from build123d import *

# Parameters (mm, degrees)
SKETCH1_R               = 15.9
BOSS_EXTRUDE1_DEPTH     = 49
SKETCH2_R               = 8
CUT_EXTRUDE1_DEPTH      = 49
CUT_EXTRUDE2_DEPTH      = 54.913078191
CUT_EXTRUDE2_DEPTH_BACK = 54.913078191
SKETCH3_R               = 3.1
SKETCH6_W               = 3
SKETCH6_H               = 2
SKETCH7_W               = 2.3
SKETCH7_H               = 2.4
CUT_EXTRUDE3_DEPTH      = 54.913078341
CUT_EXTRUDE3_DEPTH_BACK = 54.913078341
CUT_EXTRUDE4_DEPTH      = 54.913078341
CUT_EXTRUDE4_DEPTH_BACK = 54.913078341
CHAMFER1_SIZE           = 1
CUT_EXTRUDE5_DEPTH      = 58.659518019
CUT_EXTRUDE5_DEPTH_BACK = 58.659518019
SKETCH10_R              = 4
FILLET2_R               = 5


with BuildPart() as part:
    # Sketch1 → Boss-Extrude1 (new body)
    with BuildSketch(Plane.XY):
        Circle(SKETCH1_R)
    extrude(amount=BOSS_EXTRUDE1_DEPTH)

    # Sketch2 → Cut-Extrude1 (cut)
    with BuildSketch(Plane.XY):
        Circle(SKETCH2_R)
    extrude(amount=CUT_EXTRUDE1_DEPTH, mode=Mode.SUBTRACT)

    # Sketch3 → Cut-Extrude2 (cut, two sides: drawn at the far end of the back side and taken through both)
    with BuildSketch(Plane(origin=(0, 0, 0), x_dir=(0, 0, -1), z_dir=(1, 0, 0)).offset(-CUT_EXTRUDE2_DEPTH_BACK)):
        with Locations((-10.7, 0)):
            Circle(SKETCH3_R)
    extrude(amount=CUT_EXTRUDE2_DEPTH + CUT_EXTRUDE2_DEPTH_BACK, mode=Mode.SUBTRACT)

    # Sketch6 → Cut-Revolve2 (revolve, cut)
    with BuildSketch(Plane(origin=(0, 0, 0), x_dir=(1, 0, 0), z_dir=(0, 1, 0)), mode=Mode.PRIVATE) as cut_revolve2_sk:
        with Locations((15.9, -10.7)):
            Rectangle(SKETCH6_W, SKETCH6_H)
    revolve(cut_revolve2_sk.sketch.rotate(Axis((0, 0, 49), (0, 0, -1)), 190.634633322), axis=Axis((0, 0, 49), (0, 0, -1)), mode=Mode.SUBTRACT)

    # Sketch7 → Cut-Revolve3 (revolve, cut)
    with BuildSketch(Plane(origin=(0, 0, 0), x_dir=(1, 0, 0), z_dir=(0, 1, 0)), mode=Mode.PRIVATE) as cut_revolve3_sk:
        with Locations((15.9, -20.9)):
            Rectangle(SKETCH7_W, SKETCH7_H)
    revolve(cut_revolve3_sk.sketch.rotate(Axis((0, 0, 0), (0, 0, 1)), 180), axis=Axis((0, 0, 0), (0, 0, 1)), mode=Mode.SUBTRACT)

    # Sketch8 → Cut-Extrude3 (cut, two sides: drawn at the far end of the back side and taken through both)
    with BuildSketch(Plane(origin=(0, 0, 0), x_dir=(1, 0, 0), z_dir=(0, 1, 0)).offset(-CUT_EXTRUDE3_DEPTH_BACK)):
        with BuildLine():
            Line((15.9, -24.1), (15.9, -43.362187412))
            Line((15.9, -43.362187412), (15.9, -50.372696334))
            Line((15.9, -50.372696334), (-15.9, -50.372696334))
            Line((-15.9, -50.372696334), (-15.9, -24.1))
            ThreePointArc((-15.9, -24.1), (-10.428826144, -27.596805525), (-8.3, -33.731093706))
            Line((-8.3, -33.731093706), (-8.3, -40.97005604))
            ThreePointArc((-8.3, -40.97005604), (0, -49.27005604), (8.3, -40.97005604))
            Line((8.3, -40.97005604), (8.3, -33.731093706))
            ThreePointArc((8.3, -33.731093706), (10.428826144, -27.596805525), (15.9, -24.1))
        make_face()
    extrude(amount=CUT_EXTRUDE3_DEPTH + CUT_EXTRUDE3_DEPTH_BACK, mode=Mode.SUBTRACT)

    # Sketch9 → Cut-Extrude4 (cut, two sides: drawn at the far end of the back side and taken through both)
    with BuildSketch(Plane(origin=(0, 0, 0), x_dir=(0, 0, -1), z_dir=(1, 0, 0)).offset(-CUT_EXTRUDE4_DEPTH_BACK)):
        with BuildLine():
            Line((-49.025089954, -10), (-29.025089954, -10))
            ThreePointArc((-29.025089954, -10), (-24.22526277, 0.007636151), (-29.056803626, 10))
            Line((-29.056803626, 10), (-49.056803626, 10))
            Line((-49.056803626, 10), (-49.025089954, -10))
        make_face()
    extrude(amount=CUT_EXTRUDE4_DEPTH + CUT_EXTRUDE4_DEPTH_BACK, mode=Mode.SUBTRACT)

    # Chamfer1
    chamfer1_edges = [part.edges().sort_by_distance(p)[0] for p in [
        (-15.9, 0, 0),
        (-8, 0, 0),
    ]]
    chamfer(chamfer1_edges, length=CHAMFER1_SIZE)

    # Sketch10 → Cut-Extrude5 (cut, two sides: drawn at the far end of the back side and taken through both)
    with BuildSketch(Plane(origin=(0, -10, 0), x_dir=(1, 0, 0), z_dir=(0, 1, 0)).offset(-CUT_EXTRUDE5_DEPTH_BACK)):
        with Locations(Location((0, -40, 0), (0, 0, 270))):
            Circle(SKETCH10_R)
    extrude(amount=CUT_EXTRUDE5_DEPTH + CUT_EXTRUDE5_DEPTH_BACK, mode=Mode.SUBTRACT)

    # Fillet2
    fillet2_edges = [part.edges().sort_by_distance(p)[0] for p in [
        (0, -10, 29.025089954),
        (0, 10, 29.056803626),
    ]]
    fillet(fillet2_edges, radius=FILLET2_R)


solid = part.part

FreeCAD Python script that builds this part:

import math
import FreeCAD as App
import Part
import Sketcher
from FreeCAD import Vector
Q = App.Units.Quantity


def edges_at(feature, points):
    """Names of the edges that pass closest to the given points."""
    edges = feature.Shape.Edges
    near = lambda p: min(range(len(edges)), key=lambda i: edges[i].distToShape(Part.Vertex(*p))[0])
    return sorted({f"Edge{near(p) + 1}" for p in points})


def add_polygon(sketch, points):
    """Adds a closed chain of lines whose ends are joined by coincident constraints."""
    first, n = sketch.GeometryCount, len(points)
    for a, b in zip(points, points[1:] + points[:1]):
        sketch.addGeometry(Part.LineSegment(App.Vector(*a, 0), App.Vector(*b, 0)), False)
    for i in range(n):
        sketch.addConstraint(Sketcher.Constraint("Coincident", first + i, 2, first + (i + 1) % n, 1))

doc = App.newDocument("Part")
body = doc.addObject("PartDesign::Body", "Body")

# Sketch on XY plane
sketch1 = body.newObject("Sketcher::SketchObject", "Sketch")
sketch1.AttachmentSupport = (doc.getObject("XY_Plane"), [""])
sketch1.MapMode = "FlatFace"
sketch1.addGeometry(Part.Circle(Vector(0, 0, 0), Vector(0, 0, 1), 15.9), False)
sketch1.addConstraint(Sketcher.Constraint("Coincident", 0, 3, -1, 1))
sketch1.addConstraint(Sketcher.Constraint("Diameter", 0, Q("31.8 mm")))
pad1 = body.newObject("PartDesign::Pad", "Pad")
pad1.Profile = sketch1
pad1.Length = 49

# Sketch on XY plane
sketch2 = body.newObject("Sketcher::SketchObject", "Sketch001")
sketch2.AttachmentSupport = (doc.getObject("XY_Plane"), [""])
sketch2.MapMode = "FlatFace"
sketch2.addGeometry(Part.Circle(Vector(0, 0, 0), Vector(0, 0, 1), 8), False)
sketch2.addConstraint(Sketcher.Constraint("Coincident", 0, 3, -1, 1))
sketch2.addConstraint(Sketcher.Constraint("Diameter", 0, Q("16 mm")))
pocket1 = body.newObject("PartDesign::Pocket", "Pocket")
pocket1.Profile = sketch2
pocket1.Length = 49
pocket1.Reversed = True

# Sketch on YZ plane
sketch3 = body.newObject("Sketcher::SketchObject", "Sketch002")
sketch3.AttachmentSupport = (doc.getObject("YZ_Plane"), [""])
sketch3.MapMode = "FlatFace"
sketch3.addGeometry(Part.Circle(Vector(0, 10.7, 0), Vector(0, 0, 1), 3.1), False)
sketch3.addConstraint(Sketcher.Constraint("PointOnObject", 0, 3, -2))
sketch3.addConstraint(Sketcher.Constraint("Diameter", 0, Q("6.2 mm")))
sketch3.addConstraint(Sketcher.Constraint("DistanceY", -1, 1, 0, 3, Q("10.7 mm")))
pocket2 = body.newObject("PartDesign::Pocket", "Pocket001")
pocket2.Profile = sketch3
pocket2.Type = "ThroughAll"
pocket2.Midplane = True

# Sketch on XZ plane
sketch4 = body.newObject("Sketcher::SketchObject", "Sketch003")
sketch4.AttachmentSupport = (doc.getObject("XZ_Plane"), [""])
sketch4.MapMode = "FlatFace"
add_polygon(sketch4, [(14.4, 9.7), (14.4, 11.7), (17.4, 11.7), (17.4, 9.7)])  # lines 0-3
sketch4.addConstraint(Sketcher.Constraint("Vertical", 0))
sketch4.addConstraint(Sketcher.Constraint("Horizontal", 1))
sketch4.addConstraint(Sketcher.Constraint("Vertical", 2))
sketch4.addConstraint(Sketcher.Constraint("Horizontal", 3))
sketch4.addConstraint(Sketcher.Constraint("DistanceX", 1, 1, 1, 2, Q("3 mm")))
sketch4.addConstraint(Sketcher.Constraint("DistanceY", 0, 1, 0, 2, Q("2 mm")))
sketch4.addConstraint(Sketcher.Constraint("DistanceX", -1, 1, 0, 2, Q("14.4 mm")))
sketch4.addConstraint(Sketcher.Constraint("DistanceY", -1, 1, 0, 2, Q("11.7 mm")))
groove = body.newObject("PartDesign::Groove", "Groove")
groove.Profile = sketch4
groove.ReferenceAxis = (sketch4, ["V_Axis"])
groove.Angle = 360

# Sketch on XZ plane
sketch5 = body.newObject("Sketcher::SketchObject", "Sketch004")
sketch5.AttachmentSupport = (doc.getObject("XZ_Plane"), [""])
sketch5.MapMode = "FlatFace"
add_polygon(sketch5, [(14.75, 19.7), (14.75, 22.1), (17.05, 22.1), (17.05, 19.7)])  # lines 0-3
sketch5.addConstraint(Sketcher.Constraint("Vertical", 0))
sketch5.addConstraint(Sketcher.Constraint("Horizontal", 1))
sketch5.addConstraint(Sketcher.Constraint("Vertical", 2))
sketch5.addConstraint(Sketcher.Constraint("Horizontal", 3))
sketch5.addConstraint(Sketcher.Constraint("DistanceX", 1, 1, 1, 2, Q("2.3 mm")))
sketch5.addConstraint(Sketcher.Constraint("DistanceY", 0, 1, 0, 2, Q("2.4 mm")))
sketch5.addConstraint(Sketcher.Constraint("DistanceY", -1, 1, 0, 2, Q("22.1 mm")))
sketch5.addConstraint(Sketcher.Constraint("DistanceX", -1, 1, 0, 2, Q("14.75 mm")))
groove2 = body.newObject("PartDesign::Groove", "Groove001")
groove2.Profile = sketch5
groove2.ReferenceAxis = (sketch5, ["V_Axis"])
groove2.Angle = 360

# Sketch on XZ plane
sketch6 = body.newObject("Sketcher::SketchObject", "Sketch005")
sketch6.AttachmentSupport = (doc.getObject("XZ_Plane"), [""])
sketch6.MapMode = "FlatFace"
sketch6.addGeometry(Part.LineSegment(Vector(15.9, 50.372696, 0), Vector(15.9, 24.1, 0)), False)
sketch6.addGeometry(Part.ArcOfCircle(Part.Circle(Vector(18.202498, 33.731094, 0), Vector(0, 0, 1), 9.902498), math.radians(-180), math.radians(-103.445296)), False)
sketch6.addGeometry(Part.LineSegment(Vector(8.3, 33.731094, 0), Vector(8.3, 40.970056, 0)), False)
sketch6.addGeometry(Part.ArcOfCircle(Part.Circle(Vector(0, 40.970056, 0), Vector(0, 0, 1), 8.3), math.radians(0), math.radians(180)), False)
sketch6.addGeometry(Part.LineSegment(Vector(-8.3, 40.970056, 0), Vector(-8.3, 33.731094, 0)), False)
sketch6.addGeometry(Part.ArcOfCircle(Part.Circle(Vector(-18.202498, 33.731094, 0), Vector(0, 0, 1), 9.902498), math.radians(-76.554704), math.radians(0)), False)
sketch6.addGeometry(Part.LineSegment(Vector(-15.9, 24.1, 0), Vector(-15.9, 50.372696, 0)), False)
sketch6.addGeometry(Part.LineSegment(Vector(-15.9, 50.372696, 0), Vector(15.9, 50.372696, 0)), False)
sketch6.addConstraint(Sketcher.Constraint("Coincident", 0, 2, 1, 2))
sketch6.addConstraint(Sketcher.Constraint("Tangent", 1, 1, 2, 1))
sketch6.addConstraint(Sketcher.Constraint("Tangent", 2, 2, 3, 1))
sketch6.addConstraint(Sketcher.Constraint("Tangent", 3, 2, 4, 1))
sketch6.addConstraint(Sketcher.Constraint("Tangent", 4, 2, 5, 2))
sketch6.addConstraint(Sketcher.Constraint("Coincident", 5, 1, 6, 1))
sketch6.addConstraint(Sketcher.Constraint("Coincident", 6, 2, 7, 1))
sketch6.addConstraint(Sketcher.Constraint("Coincident", 7, 2, 0, 1))
sketch6.addConstraint(Sketcher.Constraint("Vertical", 0))
sketch6.addConstraint(Sketcher.Constraint("Vertical", 2))
sketch6.addConstraint(Sketcher.Constraint("Vertical", 4))
sketch6.addConstraint(Sketcher.Constraint("Vertical", 6))
sketch6.addConstraint(Sketcher.Constraint("Horizontal", 7))
sketch6.addConstraint(Sketcher.Constraint("Equal", 1, 5))
sketch6.addConstraint(Sketcher.Constraint("Symmetric", 1, 3, 5, 3, -2))
sketch6.addConstraint(Sketcher.Constraint("Horizontal", 0, 2, 5, 1))
sketch6.addConstraint(Sketcher.Constraint("Radius", 3, Q("8.3 mm")))
sketch6.addConstraint(Sketcher.Constraint("DistanceX", 7, 1, 7, 2, Q("31.8 mm")))
sketch6.addConstraint(Sketcher.Constraint("DistanceY", -1, 1, 0, 2, Q("24.1 mm")))
sketch6.addConstraint(Sketcher.Constraint("Radius", 1, Q("9.902498 mm")))
sketch6.addConstraint(Sketcher.Constraint("DistanceY", 0, 2, 0, 1, Q("26.272696 mm")))
sketch6.addConstraint(Sketcher.Constraint("DistanceY", 2, 1, 2, 2, Q("7.238962 mm")))
pocket3 = body.newObject("PartDesign::Pocket", "Pocket002")
pocket3.Profile = sketch6
pocket3.Type = "ThroughAll"
pocket3.Midplane = True

# Sketch on YZ plane
sketch7 = body.newObject("Sketcher::SketchObject", "Sketch006")
sketch7.AttachmentSupport = (doc.getObject("YZ_Plane"), [""])
sketch7.MapMode = "FlatFace"
sketch7.addGeometry(Part.LineSegment(Vector(-10, 49.02509, 0), Vector(-10, 29.02509, 0)), False)
sketch7.addGeometry(Part.ArcOfCircle(Part.Circle(Vector(-0.012646, 37.015846, 0), Vector(0, 0, 1), 12.790599), math.radians(-141.33714), math.radians(-38.481154)), False)
sketch7.addGeometry(Part.LineSegment(Vector(10, 29.056804, 0), Vector(10, 49.056804, 0)), False)
sketch7.addGeometry(Part.LineSegment(Vector(10, 49.056804, 0), Vector(-10, 49.02509, 0)), False)
sketch7.addConstraint(Sketcher.Constraint("Coincident", 0, 2, 1, 1))
sketch7.addConstraint(Sketcher.Constraint("Coincident", 1, 2, 2, 1))
sketch7.addConstraint(Sketcher.Constraint("Coincident", 2, 2, 3, 1))
sketch7.addConstraint(Sketcher.Constraint("Coincident", 3, 2, 0, 1))
sketch7.addConstraint(Sketcher.Constraint("Vertical", 0))
sketch7.addConstraint(Sketcher.Constraint("Vertical", 2))
sketch7.addConstraint(Sketcher.Constraint("Equal", 0, 2))
sketch7.addConstraint(Sketcher.Constraint("DistanceY", 0, 2, 0, 1, Q("20 mm")))
sketch7.addConstraint(Sketcher.Constraint("DistanceX", 0, 2, -1, 1, Q("10 mm")))
sketch7.addConstraint(Sketcher.Constraint("DistanceX", -1, 1, 1, 2, Q("10 mm")))
sketch7.addConstraint(Sketcher.Constraint("Radius", 1, Q("12.790599 mm")))
sketch7.addConstraint(Sketcher.Constraint("DistanceY", -1, 1, 0, 2, Q("29.02509 mm")))
sketch7.addConstraint(Sketcher.Constraint("DistanceX", 1, 3, -1, 1, Q("0.012646 mm")))
pocket4 = body.newObject("PartDesign::Pocket", "Pocket003")
pocket4.Profile = sketch7
pocket4.Type = "ThroughAll"
pocket4.Midplane = True
doc.recompute()

chamfer = body.newObject("PartDesign::Chamfer", "Chamfer")
chamfer.Base = (pocket4, edges_at(pocket4, [(-15.9, 0, 0), (-8, 0, 0)]))
chamfer.Size = 1

# Sketch on XZ plane
sketch8 = body.newObject("Sketcher::SketchObject", "Sketch007")
sketch8.AttachmentSupport = (doc.getObject("XZ_Plane"), [""])
sketch8.MapMode = "FlatFace"
sketch8.AttachmentOffset = App.Placement(Vector(0, 0, 10), App.Rotation())
sketch8.addGeometry(Part.Circle(Vector(0, 40, 0), Vector(0, 0, 1), 4), False)
sketch8.addConstraint(Sketcher.Constraint("PointOnObject", 0, 3, -2))
sketch8.addConstraint(Sketcher.Constraint("Diameter", 0, Q("8 mm")))
sketch8.addConstraint(Sketcher.Constraint("DistanceY", -1, 1, 0, 3, Q("40 mm")))
pocket5 = body.newObject("PartDesign::Pocket", "Pocket004")
pocket5.Profile = sketch8
pocket5.Type = "ThroughAll"
pocket5.Midplane = True
doc.recompute()

fillet = body.newObject("PartDesign::Fillet", "Fillet")
fillet.Base = (pocket5, edges_at(pocket5, [(0, -10, 29.025), (0, 10, 29.057)]))
fillet.Radius = 5

doc.recompute()
